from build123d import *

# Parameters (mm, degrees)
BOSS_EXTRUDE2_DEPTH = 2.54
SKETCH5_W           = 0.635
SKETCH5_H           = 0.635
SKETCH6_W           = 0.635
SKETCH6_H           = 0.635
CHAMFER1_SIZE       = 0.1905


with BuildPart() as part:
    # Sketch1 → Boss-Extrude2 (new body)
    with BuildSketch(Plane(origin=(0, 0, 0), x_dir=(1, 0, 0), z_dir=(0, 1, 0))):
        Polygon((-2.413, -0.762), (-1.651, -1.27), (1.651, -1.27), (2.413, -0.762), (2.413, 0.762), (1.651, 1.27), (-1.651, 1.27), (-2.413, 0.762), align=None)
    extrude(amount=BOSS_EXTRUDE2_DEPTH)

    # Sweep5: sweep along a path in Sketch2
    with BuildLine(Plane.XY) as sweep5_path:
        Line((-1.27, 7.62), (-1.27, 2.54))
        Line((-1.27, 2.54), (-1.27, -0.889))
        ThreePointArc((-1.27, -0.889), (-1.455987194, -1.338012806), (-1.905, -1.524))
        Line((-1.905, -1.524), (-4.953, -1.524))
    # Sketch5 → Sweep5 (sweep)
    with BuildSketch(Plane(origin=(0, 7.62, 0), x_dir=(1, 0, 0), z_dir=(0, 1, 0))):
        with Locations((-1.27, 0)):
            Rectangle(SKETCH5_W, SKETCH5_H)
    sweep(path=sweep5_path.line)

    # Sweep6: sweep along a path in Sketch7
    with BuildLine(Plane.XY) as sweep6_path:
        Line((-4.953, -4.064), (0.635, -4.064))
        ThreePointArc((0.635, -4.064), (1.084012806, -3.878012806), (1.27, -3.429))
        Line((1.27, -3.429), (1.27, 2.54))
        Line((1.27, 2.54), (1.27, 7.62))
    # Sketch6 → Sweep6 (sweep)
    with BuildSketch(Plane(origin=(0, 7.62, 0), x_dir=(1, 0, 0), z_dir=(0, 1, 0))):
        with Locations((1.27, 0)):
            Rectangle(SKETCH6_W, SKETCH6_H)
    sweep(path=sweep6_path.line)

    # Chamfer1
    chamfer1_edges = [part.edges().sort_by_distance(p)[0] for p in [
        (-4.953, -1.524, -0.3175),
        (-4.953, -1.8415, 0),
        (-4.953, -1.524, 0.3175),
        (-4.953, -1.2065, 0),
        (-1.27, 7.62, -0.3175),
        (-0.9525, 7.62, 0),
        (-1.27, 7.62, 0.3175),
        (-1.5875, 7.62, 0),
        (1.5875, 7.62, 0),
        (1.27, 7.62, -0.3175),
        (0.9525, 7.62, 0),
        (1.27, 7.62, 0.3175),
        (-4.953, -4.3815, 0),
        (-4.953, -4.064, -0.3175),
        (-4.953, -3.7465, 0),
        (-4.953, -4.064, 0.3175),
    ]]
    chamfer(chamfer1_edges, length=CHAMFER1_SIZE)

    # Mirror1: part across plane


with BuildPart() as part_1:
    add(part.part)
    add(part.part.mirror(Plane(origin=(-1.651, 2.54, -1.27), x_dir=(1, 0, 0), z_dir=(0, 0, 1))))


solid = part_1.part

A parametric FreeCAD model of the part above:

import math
import FreeCAD as App
import Part
import Sketcher
from FreeCAD import Vector
Q = App.Units.Quantity


def edges_at(feature, points):
    """Names of the edges that pass closest to the given points."""
    edges = feature.Shape.Edges
    near = lambda p: min(range(len(edges)), key=lambda i: edges[i].distToShape(Part.Vertex(*p))[0])
    return sorted({f"Edge{near(p) + 1}" for p in points})


def add_polygon(sketch, points):
    """Adds a closed chain of lines whose ends are joined by coincident constraints."""
    first, n = sketch.GeometryCount, len(points)
    for a, b in zip(points, points[1:] + points[:1]):
        sketch.addGeometry(Part.LineSegment(App.Vector(*a, 0), App.Vector(*b, 0)), False)
    for i in range(n):
        sketch.addConstraint(Sketcher.Constraint("Coincident", first + i, 2, first + (i + 1) % n, 1))

doc = App.newDocument("Part")
body = doc.addObject("PartDesign::Body", "Body")

sketch1 = body.newObject("Sketcher::SketchObject", "Sketch")
sketch1.AttachmentSupport = (doc.getObject("XZ_Plane"), [""])
sketch1.MapMode = "FlatFace"
add_polygon(sketch1, [(-2.413, 0.762), (-1.651, 1.27), (1.651, 1.27), (2.413, 0.762), (2.413, -0.762), (1.651, -1.27), (-1.651, -1.27), (-2.413, -0.762)])
sketch1.addConstraint([
    Sketcher.Constraint("Horizontal", 1),
    Sketcher.Constraint("Vertical", 3),
    Sketcher.Constraint("Horizontal", 5),
    Sketcher.Constraint("Vertical", 7),
    Sketcher.Constraint("Symmetric", 0, 2, 4, 2, -1, 1),
    Sketcher.Constraint("Symmetric", 2, 2, 6, 2, -1, 1),
    Sketcher.Constraint("Parallel", 0, 4),
    Sketcher.Constraint("Parallel", 2, 6),
    Sketcher.Constraint("Horizontal", 3, 2, 6, 2),
    Sketcher.Constraint("Vertical", 1, 2, 4, 2),
    Sketcher.Constraint("DistanceX", 1, 1, 1, 2, Q("0.13 in")),
    Sketcher.Constraint("DistanceY", 3, 2, 3, 1, Q("0.06 in")),
    Sketcher.Constraint("DistanceY", 4, 2, 1, 2, Q("0.1 in")),
    Sketcher.Constraint("DistanceX", 1, 2, 2, 2, Q("0.03 in")),
])
pad1 = body.newObject("PartDesign::Pad", "Pad")
pad1.Profile = sketch1
pad1.Length = Q("0.1 in")
pad1.Reversed = True

sketch2 = body.newObject("Sketcher::SketchObject", "Sketch001")
sketch2.AttachmentSupport = (doc.getObject("XZ_Plane"), [""])
sketch2.MapMode = "FlatFace"
sketch2.AttachmentOffset = App.Placement(Vector(0, 0, -0.3 * 25.4), App.Rotation())
add_polygon(sketch2, [(-1.5875, -0.3175), (-1.5875, 0.3175), (-0.9525, 0.3175), (-0.9525, -0.3175)])
sketch2.addConstraint([
    Sketcher.Constraint("Vertical", 0),
    Sketcher.Constraint("Horizontal", 1),
    Sketcher.Constraint("Vertical", 2),
    Sketcher.Constraint("Horizontal", 3),
    Sketcher.Constraint("Equal", 3, 0),
    Sketcher.Constraint("DistanceX", 1, 1, 1, 2, Q("0.025 in")),
    Sketcher.Constraint("DistanceX", 0, 2, -1, 1, Q("0.0625 in")),
    Sketcher.Constraint("DistanceY", -1, 1, 0, 2, Q("0.0125 in")),
])

sketch3 = body.newObject("Sketcher::SketchObject", "Sketch002")
sketch3.AttachmentSupport = (doc.getObject("XY_Plane"), [""])
sketch3.MapMode = "FlatFace"
sketch3.addGeometry([
    Part.LineSegment(Vector(-1.27, 7.62, 0), Vector(-1.27, -0.889, 0)),
    Part.ArcOfCircle(Part.Circle(Vector(-1.905, -0.889, 0), Vector(0, 0, 1), 0.635), math.radians(-90), math.radians(0)),
    Part.LineSegment(Vector(-1.905, -1.524, 0), Vector(-4.953, -1.524, 0)),
], False)
sketch3.addConstraint([
    Sketcher.Constraint("Tangent", 0, 2, 1, 2),
    Sketcher.Constraint("Tangent", 1, 1, 2, 1),
    Sketcher.Constraint("Vertical", 0),
    Sketcher.Constraint("Horizontal", 2),
    Sketcher.Constraint("Radius", 1, Q("0.025 in")),
    Sketcher.Constraint("DistanceX", 2, 2, 2, 1, Q("0.12 in")),
    Sketcher.Constraint("DistanceY", -1, 1, 0, 1, Q("0.3 in")),
    Sketcher.Constraint("DistanceY", 0, 2, 0, 1, Q("0.335 in")),
    Sketcher.Constraint("DistanceX", 0, 1, -1, 1, Q("0.05 in")),
])
doc.recompute()

additivepipe = body.newObject("PartDesign::AdditivePipe", "AdditivePipe")
additivepipe.Profile = sketch2
additivepipe.Spine = (sketch3, ["Edge1", "Edge2", "Edge3"])

sketch4 = body.newObject("Sketcher::SketchObject", "Sketch003")
sketch4.AttachmentSupport = (doc.getObject("XZ_Plane"), [""])
sketch4.MapMode = "FlatFace"
sketch4.AttachmentOffset = App.Placement(Vector(0, 0, -0.3 * 25.4), App.Rotation())
add_polygon(sketch4, [(0.9525, -0.3175), (0.9525, 0.3175), (1.5875, 0.3175), (1.5875, -0.3175)])
sketch4.addConstraint([
    Sketcher.Constraint("Vertical", 0),
    Sketcher.Constraint("Horizontal", 1),
    Sketcher.Constraint("Vertical", 2),
    Sketcher.Constraint("Horizontal", 3),
    Sketcher.Constraint("Equal", 3, 0),
    Sketcher.Constraint("DistanceX", 1, 1, 1, 2, Q("0.025 in")),
    Sketcher.Constraint("DistanceX", -1, 1, 1, 2, Q("0.0625 in")),
    Sketcher.Constraint("DistanceY", -1, 1, 0, 2, Q("0.0125 in")),
])

sketch5 = body.newObject("Sketcher::SketchObject", "Sketch004")
sketch5.AttachmentSupport = (doc.getObject("XY_Plane"), [""])
sketch5.MapMode = "FlatFace"
sketch5.addGeometry([
    Part.LineSegment(Vector(-4.953, -4.064, 0), Vector(0.635, -4.064, 0)),
    Part.ArcOfCircle(Part.Circle(Vector(0.635, -3.429, 0), Vector(0, 0, 1), 0.635), math.radians(-90), math.radians(0)),
    Part.LineSegment(Vector(1.27, -3.429, 0), Vector(1.27, 7.62, 0)),
], False)
sketch5.addConstraint([
    Sketcher.Constraint("Tangent", 0, 2, 1, 1),
    Sketcher.Constraint("Tangent", 1, 2, 2, 1),
    Sketcher.Constraint("Horizontal", 0),
    Sketcher.Constraint("Vertical", 2),
    Sketcher.Constraint("Radius", 1, Q("0.025 in")),
    Sketcher.Constraint("DistanceX", 0, 1, 0, 2, Q("0.22 in")),
    Sketcher.Constraint("DistanceY", -1, 1, 2, 2, Q("0.3 in")),
    Sketcher.Constraint("DistanceY", 2, 1, 2, 2, Q("0.435 in")),
    Sketcher.Constraint("DistanceX", -1, 1, 1, 2, Q("0.05 in")),
])
doc.recompute()

additivepipe2 = body.newObject("PartDesign::AdditivePipe", "AdditivePipe001")
additivepipe2.Profile = sketch4
additivepipe2.Spine = (sketch5, ["Edge1", "Edge2", "Edge3"])
doc.recompute()

chamfer = body.newObject("PartDesign::Chamfer", "Chamfer")
chamfer.Base = (additivepipe2, edges_at(additivepipe2, [
    (-4.953, -1.524, -0.318),
    (-4.953, -1.841, 0),
    (-4.953, -1.524, 0.318),
    (-4.953, -1.206, 0),
    (-1.27, 7.62, -0.318),
    (-0.953, 7.62, 0),
    (-1.27, 7.62, 0.318),
    (-1.587, 7.62, 0),
    (1.587, 7.62, 0),
    (1.27, 7.62, -0.318),
    (0.953, 7.62, 0),
    (1.27, 7.62, 0.318),
    (-4.953, -4.381, 0),
    (-4.953, -4.064, -0.318),
    (-4.953, -3.747, 0),
    (-4.953, -4.064, 0.318),
]))
chamfer.Size = Q("0.0075 in")
body2 = doc.addObject("PartDesign::Body", "Body001")
doc.recompute()

body2.BaseFeature = body
doc.recompute()

mirroring = doc.addObject("Part::Mirroring", "Mirroring")
mirroring.Source = body
mirroring.Base = Vector(-1.651, 2.54, -1.27)
mirroring.Normal = Vector(0, 0, 1)
body3 = doc.addObject("PartDesign::Body", "Body002")
body3.BaseFeature = mirroring
boolean = body2.newObject("PartDesign::Boolean", "Boolean")
boolean.Type = "Fuse"
boolean.addObjects([body3])
doc.recompute()
mirroring.Visibility = False

doc.recompute()
